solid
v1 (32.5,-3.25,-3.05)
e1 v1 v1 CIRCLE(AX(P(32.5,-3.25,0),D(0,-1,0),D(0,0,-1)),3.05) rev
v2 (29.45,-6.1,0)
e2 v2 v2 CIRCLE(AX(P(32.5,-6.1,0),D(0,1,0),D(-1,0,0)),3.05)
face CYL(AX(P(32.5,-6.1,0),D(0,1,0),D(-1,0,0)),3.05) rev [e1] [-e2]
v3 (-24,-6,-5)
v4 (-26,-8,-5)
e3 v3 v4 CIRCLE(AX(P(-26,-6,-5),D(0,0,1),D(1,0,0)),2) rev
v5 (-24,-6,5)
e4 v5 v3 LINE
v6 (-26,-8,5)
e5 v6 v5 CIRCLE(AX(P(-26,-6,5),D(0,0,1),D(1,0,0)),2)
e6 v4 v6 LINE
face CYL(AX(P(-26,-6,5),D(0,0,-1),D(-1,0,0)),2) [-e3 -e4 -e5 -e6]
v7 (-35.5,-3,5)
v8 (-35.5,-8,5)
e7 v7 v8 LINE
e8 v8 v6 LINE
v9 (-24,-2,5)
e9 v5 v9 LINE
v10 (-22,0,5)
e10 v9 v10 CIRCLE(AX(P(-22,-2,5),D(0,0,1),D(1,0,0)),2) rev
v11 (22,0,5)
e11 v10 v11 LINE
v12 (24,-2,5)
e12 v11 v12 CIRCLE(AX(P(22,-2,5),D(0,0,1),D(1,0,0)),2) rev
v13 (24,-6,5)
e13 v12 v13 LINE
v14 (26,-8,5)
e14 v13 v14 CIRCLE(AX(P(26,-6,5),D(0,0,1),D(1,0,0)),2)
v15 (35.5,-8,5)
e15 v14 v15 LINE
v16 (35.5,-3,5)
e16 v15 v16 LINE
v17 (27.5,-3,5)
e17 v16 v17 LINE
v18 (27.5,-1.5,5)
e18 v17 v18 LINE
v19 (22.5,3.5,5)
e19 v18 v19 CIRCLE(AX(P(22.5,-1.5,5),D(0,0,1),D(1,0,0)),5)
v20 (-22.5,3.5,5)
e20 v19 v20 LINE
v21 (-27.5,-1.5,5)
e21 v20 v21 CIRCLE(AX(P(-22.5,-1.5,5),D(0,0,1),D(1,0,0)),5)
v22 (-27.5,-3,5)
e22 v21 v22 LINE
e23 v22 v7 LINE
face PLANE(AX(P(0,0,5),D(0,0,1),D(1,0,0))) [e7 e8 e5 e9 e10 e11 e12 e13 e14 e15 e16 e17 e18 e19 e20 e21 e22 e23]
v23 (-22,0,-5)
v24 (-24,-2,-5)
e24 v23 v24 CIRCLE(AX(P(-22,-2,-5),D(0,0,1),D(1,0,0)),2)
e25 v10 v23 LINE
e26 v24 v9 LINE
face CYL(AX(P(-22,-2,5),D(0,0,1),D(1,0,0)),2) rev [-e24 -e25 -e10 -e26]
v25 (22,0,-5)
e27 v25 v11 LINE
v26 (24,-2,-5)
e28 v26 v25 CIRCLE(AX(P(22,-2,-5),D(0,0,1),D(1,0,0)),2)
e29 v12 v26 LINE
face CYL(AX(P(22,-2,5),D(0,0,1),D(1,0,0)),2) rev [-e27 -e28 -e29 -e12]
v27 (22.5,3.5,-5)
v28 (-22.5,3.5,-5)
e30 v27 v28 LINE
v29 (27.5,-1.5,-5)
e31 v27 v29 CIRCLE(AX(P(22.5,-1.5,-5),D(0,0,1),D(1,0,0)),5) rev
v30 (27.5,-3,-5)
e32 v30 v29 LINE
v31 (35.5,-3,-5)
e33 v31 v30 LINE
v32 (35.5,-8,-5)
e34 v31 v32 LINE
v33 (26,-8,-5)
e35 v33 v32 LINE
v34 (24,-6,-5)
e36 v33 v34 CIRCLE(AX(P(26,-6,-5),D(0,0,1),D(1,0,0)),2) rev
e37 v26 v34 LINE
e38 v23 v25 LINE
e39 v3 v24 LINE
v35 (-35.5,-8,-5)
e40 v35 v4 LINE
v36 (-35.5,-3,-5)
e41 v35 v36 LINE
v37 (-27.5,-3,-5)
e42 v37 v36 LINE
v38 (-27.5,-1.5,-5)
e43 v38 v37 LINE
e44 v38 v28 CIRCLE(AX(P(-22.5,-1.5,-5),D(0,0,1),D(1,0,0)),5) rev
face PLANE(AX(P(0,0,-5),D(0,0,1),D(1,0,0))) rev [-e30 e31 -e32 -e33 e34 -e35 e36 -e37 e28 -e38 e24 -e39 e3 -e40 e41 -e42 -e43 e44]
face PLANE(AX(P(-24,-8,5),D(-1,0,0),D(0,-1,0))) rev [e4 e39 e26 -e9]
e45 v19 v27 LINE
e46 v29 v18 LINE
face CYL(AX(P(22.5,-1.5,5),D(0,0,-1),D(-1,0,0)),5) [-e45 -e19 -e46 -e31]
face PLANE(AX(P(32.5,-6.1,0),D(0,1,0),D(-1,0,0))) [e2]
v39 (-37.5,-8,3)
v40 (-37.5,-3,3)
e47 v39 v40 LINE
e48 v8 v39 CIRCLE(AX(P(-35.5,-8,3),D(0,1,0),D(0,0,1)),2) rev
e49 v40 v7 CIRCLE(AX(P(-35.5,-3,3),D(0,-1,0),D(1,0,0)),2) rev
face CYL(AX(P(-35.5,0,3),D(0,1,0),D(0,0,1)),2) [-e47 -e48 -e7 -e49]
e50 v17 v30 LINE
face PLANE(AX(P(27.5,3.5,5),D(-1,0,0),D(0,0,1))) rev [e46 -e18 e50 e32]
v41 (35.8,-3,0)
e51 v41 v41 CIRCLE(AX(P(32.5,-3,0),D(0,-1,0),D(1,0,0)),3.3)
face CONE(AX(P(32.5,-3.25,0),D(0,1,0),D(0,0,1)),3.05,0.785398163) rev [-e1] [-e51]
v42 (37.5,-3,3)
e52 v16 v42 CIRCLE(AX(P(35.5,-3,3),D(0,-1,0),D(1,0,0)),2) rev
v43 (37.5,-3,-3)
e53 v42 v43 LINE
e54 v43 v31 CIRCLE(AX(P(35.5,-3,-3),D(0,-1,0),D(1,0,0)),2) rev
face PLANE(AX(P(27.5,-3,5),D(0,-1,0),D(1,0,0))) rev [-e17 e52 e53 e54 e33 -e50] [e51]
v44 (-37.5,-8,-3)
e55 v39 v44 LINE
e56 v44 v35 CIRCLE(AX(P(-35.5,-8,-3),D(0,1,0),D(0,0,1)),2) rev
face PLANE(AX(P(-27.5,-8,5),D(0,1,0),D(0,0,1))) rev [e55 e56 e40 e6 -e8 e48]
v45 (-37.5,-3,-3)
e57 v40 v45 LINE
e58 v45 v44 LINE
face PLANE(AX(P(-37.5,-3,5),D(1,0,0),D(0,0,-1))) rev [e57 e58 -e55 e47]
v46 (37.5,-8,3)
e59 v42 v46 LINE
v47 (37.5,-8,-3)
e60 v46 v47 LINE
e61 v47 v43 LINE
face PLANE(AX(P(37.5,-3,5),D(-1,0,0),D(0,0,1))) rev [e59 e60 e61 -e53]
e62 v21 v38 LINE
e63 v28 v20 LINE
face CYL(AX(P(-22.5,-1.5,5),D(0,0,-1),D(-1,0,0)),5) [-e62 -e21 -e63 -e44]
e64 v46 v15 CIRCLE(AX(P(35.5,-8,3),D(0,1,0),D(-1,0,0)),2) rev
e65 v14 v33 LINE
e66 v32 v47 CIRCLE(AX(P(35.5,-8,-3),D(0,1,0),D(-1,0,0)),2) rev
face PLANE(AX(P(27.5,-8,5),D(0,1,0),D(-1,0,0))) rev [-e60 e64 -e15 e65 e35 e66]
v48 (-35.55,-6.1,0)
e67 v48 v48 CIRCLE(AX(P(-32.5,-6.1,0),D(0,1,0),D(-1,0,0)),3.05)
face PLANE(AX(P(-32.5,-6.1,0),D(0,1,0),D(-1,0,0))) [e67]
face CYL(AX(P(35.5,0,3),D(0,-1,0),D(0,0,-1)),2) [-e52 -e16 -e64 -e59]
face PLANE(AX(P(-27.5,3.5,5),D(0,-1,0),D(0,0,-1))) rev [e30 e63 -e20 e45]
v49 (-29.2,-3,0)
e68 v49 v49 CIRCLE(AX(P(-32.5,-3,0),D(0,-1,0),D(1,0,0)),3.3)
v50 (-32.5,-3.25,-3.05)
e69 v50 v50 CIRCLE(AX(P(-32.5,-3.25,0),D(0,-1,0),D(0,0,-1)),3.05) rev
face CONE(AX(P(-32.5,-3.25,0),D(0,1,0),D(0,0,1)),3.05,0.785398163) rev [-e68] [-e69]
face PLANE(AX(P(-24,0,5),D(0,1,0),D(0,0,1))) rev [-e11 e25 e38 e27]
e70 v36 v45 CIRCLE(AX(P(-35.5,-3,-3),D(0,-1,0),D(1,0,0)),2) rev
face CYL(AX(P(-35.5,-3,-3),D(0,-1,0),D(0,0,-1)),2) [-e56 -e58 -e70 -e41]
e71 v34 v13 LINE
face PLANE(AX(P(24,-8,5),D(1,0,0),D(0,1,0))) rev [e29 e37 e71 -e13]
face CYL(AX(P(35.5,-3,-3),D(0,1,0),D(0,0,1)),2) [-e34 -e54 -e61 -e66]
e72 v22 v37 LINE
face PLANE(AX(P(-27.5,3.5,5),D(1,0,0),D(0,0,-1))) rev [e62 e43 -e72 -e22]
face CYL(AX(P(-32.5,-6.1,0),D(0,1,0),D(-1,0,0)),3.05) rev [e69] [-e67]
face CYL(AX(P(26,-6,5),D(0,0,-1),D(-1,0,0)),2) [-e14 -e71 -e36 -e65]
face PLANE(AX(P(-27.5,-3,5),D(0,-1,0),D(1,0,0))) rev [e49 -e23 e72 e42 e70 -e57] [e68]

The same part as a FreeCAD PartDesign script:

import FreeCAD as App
import Part
import Sketcher

V = App.Vector
Q = App.Units.Quantity


def edges_at(feature, points):
    """Names of the edges that pass closest to the given points."""
    edges = feature.Shape.Edges
    near = lambda p: min(range(len(edges)), key=lambda i: edges[i].distToShape(Part.Vertex(*p))[0])
    return sorted({f"Edge{near(p) + 1}" for p in points})


def add_polygon(sketch, points):
    """Adds a closed chain of lines whose ends are joined by coincident constraints."""
    first, n = sketch.GeometryCount, len(points)
    for a, b in zip(points, points[1:] + points[:1]):
        sketch.addGeometry(Part.LineSegment(App.Vector(*a, 0), App.Vector(*b, 0)), False)
    for i in range(n):
        sketch.addConstraint(Sketcher.Constraint("Coincident", first + i, 2, first + (i + 1) % n, 1))

doc = App.newDocument("Part")
body = doc.addObject("PartDesign::Body", "Body")

# Sketch on XY plane
sketch1 = body.newObject("Sketcher::SketchObject", "Sketch")
sketch1.AttachmentSupport = (doc.getObject("XY_Plane"), [""])
sketch1.MapMode = "FlatFace"
add_polygon(sketch1, [(27.5, 3.5), (-27.5, 3.5), (-27.5, -3), (-37.5, -3), (-37.5, -8), (-24, -8), (-24, 0), (24, 0), (24, -8), (37.5, -8), (37.5, -3), (27.5, -3)])  # lines 0-11
sketch1.addConstraint([
    Sketcher.Constraint("Horizontal", 0),
    Sketcher.Constraint("Vertical", 1),
    Sketcher.Constraint("Horizontal", 2),
    Sketcher.Constraint("Vertical", 3),
    Sketcher.Constraint("Horizontal", 4),
    Sketcher.Constraint("Vertical", 5),
    Sketcher.Constraint("Horizontal", 6),
    Sketcher.Constraint("Vertical", 7),
    Sketcher.Constraint("Horizontal", 8),
    Sketcher.Constraint("Vertical", 9),
    Sketcher.Constraint("Horizontal", 10),
    Sketcher.Constraint("Vertical", 11),
    Sketcher.Constraint("Symmetric", 5, 2, 6, 2, -1, 1),
    Sketcher.Constraint("Symmetric", 3, 2, 8, 2, -2),
    Sketcher.Constraint("Symmetric", 1, 2, 10, 2, -2),
    Sketcher.Constraint("DistanceX", 0, 2, 0, 1, Q("55 mm")),
    Sketcher.Constraint("DistanceX", 2, 2, 2, 1, Q("10 mm")),
    Sketcher.Constraint("DistanceX", 6, 1, 6, 2, Q("48 mm")),
    Sketcher.Constraint("DistanceY", 3, 2, 3, 1, Q("5 mm")),
    Sketcher.Constraint("DistanceY", 5, 1, 5, 2, Q("8 mm")),
    Sketcher.Constraint("DistanceY", 1, 2, 1, 1, Q("6.5 mm")),
])
pad1 = body.newObject("PartDesign::Pad", "Pad")
pad1.Profile = sketch1
pad1.Length = 10
pad1.Midplane = True
doc.recompute()

fillet = body.newObject("PartDesign::Fillet", "Fillet")
fillet.Base = (pad1, edges_at(pad1, [(24, 0, 0), (-24, 0, 0)]))
fillet.Radius = 2
doc.recompute()

fillet2 = body.newObject("PartDesign::Fillet", "Fillet001")
fillet2.Base = (fillet, edges_at(fillet, [(-27.5, 3.5, 0), (27.5, 3.5, 0)]))
fillet2.Radius = 5
doc.recompute()

fillet3 = body.newObject("PartDesign::Fillet", "Fillet002")
fillet3.Base = (fillet2, edges_at(fillet2, [
    (37.5, -5.5, -5),
    (-37.5, -5.5, -5),
    (-37.5, -5.5, 5),
    (37.5, -5.5, 5),
]))
fillet3.Radius = 2
doc.recompute()

fillet4 = body.newObject("PartDesign::Fillet", "Fillet003")
fillet4.Base = (fillet3, edges_at(fillet3, [(24, -8, 0), (-24, -8, 0)]))
fillet4.Radius = 2

# Sketch on XZ plane
sketch2 = body.newObject("Sketcher::SketchObject", "Sketch001")
sketch2.AttachmentSupport = (doc.getObject("XZ_Plane"), [""])
sketch2.MapMode = "FlatFace"
sketch2.AttachmentOffset = App.Placement(V(0, 0, 3), App.Rotation())
sketch2.addGeometry([
    Part.Circle(V(32.5, 0, 0), V(0, 0, 1), 3.05),
    Part.Circle(V(-32.5, 0, 0), V(0, 0, 1), 3.05),
], False)
sketch2.addConstraint([
    Sketcher.Constraint("Equal", 0, 1),
    Sketcher.Constraint("Symmetric", 0, 3, 1, 3, -1, 1),
    Sketcher.Constraint("PointOnObject", 0, 3, -1),
    Sketcher.Constraint("Diameter", 0, Q("6.1 mm")),
    Sketcher.Constraint("DistanceX", 1, 3, 0, 3, Q("65 mm")),
])
pocket1 = body.newObject("PartDesign::Pocket", "Pocket")
pocket1.Profile = sketch2
pocket1.Length = 3.1
pocket1.Reversed = True
doc.recompute()

chamfer = body.newObject("PartDesign::Chamfer", "Chamfer")
chamfer.Base = (pocket1, edges_at(pocket1, [(29.45, -3, 0), (-35.55, -3, 0)]))
chamfer.Size = 0.25

doc.recompute()
